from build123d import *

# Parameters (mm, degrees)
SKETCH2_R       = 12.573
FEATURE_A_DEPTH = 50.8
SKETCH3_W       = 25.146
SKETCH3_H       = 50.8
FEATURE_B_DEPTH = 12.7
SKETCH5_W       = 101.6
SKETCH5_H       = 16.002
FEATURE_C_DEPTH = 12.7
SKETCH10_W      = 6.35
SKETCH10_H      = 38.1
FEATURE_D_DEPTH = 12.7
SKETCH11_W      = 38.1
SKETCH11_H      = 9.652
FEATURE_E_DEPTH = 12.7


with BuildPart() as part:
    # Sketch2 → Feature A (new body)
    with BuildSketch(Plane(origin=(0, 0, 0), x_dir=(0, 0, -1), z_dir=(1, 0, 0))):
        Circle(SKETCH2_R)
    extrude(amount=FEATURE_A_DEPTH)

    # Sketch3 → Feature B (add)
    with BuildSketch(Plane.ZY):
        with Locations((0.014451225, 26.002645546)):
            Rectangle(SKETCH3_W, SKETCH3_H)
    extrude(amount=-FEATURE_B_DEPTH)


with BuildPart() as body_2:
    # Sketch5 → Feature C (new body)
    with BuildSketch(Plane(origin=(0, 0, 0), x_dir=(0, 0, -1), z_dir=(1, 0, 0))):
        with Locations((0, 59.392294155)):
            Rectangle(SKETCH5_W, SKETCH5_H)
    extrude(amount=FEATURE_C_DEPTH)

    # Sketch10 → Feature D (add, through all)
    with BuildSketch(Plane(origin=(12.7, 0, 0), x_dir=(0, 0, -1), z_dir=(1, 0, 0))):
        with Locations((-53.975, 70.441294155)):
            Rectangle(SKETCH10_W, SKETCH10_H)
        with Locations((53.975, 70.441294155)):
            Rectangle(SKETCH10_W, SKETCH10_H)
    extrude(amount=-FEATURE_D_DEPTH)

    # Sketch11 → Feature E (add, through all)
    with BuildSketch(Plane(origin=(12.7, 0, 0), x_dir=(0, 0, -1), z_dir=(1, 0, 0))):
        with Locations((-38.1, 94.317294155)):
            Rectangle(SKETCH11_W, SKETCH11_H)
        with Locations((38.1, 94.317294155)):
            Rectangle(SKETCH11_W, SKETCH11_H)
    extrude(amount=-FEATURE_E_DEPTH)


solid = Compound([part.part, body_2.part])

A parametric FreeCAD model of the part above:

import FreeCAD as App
import Part
import Sketcher
from FreeCAD import Vector
Q = App.Units.Quantity


def add_polygon(sketch, points):
    """Adds a closed chain of lines whose ends are joined by coincident constraints."""
    first, n = sketch.GeometryCount, len(points)
    for a, b in zip(points, points[1:] + points[:1]):
        sketch.addGeometry(Part.LineSegment(App.Vector(*a, 0), App.Vector(*b, 0)), False)
    for i in range(n):
        sketch.addConstraint(Sketcher.Constraint("Coincident", first + i, 2, first + (i + 1) % n, 1))

doc = App.newDocument("Part")
params = doc.addObject("Spreadsheet::Sheet", "Params")
for row, (alias, value) in enumerate([
    ("sketch1_diameter", "0.99 in"),
    ("pad1_length", "2 in"),
    ("sketch2_width", "2 in"),
    ("sketch2_height", "0.99 in"),
    ("pad2_length", "0.5 in"),
    ("sketch3_height", "4 in"),
    ("sketch3_width", "0.63 in"),
    ("pad3_length", "0.5 in"),
    ("sketch4_width", "1.5 in"),
    ("sketch4_height", "0.25 in"),
    ("pad4_length", "0.5 in"),
    ("sketch5_height", "1.5 in"),
    ("sketch5_width", "0.38 in"),
    ("pad5_length", "0.5 in"),
], start=1):
    params.set(f"A{row}", alias)
    params.set(f"B{row}", "=" + value)
    params.setAlias(f"B{row}", alias)

body = doc.addObject("PartDesign::Body", "Body")

# Sketch on YZ plane
sketch1 = doc.addObject("Sketcher::SketchObject", "Sketch")
body.addObject(sketch1)
sketch1.AttachmentSupport = (doc.YZ_Plane, [""])
sketch1.MapMode = "FlatFace"
sketch1.addGeometry(Part.Circle(Vector(0, 0, 0), Vector(0, 0, 1), 13), False)
sketch1.addConstraint(Sketcher.Constraint("Coincident", 0, 3, -1, 1))
sketch1.addConstraint(Sketcher.Constraint("Diameter", 0, Q("0.99 in")))
sketch1.setExpression("Constraints[1]", "Params.sketch1_diameter")
pad1 = doc.addObject("PartDesign::Pad", "Pad")
body.addObject(pad1)
pad1.Profile = sketch1
pad1.setExpression("Length", "Params.pad1_length")

# Sketch on YZ plane
sketch2 = doc.addObject("Sketcher::SketchObject", "Sketch001")
body.addObject(sketch2)
sketch2.AttachmentSupport = (doc.YZ_Plane, [""])
sketch2.MapMode = "FlatFace"
add_polygon(sketch2, [(51, -13), (1, -13), (1, 13), (51, 13)])  # lines 0-3
sketch2.addConstraint(Sketcher.Constraint("Horizontal", 0))
sketch2.addConstraint(Sketcher.Constraint("Vertical", 1))
sketch2.addConstraint(Sketcher.Constraint("Horizontal", 2))
sketch2.addConstraint(Sketcher.Constraint("Vertical", 3))
sketch2.addConstraint(Sketcher.Constraint("DistanceX", 0, 2, 0, 1, Q("2 in")))
sketch2.addConstraint(Sketcher.Constraint("DistanceY", 1, 1, 1, 2, Q("0.99 in")))
sketch2.addConstraint(Sketcher.Constraint("DistanceY", 0, 2, -1, 1, Q("12.558549 mm")))
sketch2.addConstraint(Sketcher.Constraint("DistanceX", -1, 1, 0, 2, Q("0.602646 mm")))
sketch2.setExpression("Constraints[8]", "Params.sketch2_width")
sketch2.setExpression("Constraints[9]", "Params.sketch2_height")
pad2 = doc.addObject("PartDesign::Pad", "Pad001")
body.addObject(pad2)
pad2.Profile = sketch2
pad2.setExpression("Length", "Params.pad2_length")
body2 = doc.addObject("PartDesign::Body", "Body001")

# Sketch on YZ plane
sketch3 = doc.addObject("Sketcher::SketchObject", "Sketch002")
body2.addObject(sketch3)
sketch3.AttachmentSupport = (doc.getObject("YZ_Plane001"), [""])
sketch3.MapMode = "FlatFace"
add_polygon(sketch3, [(67, 51), (51, 51), (51, -51), (67, -51)])  # lines 0-3
sketch3.addConstraint(Sketcher.Constraint("Horizontal", 0))
sketch3.addConstraint(Sketcher.Constraint("Vertical", 1))
sketch3.addConstraint(Sketcher.Constraint("Horizontal", 2))
sketch3.addConstraint(Sketcher.Constraint("Vertical", 3))
sketch3.addConstraint(Sketcher.Constraint("DistanceY", 1, 2, 1, 1, Q("4 in")))
sketch3.addConstraint(Sketcher.Constraint("DistanceY", -1, 1, 0, 2, Q("2 in")))
sketch3.addConstraint(Sketcher.Constraint("DistanceX", 0, 2, 0, 1, Q("0.63 in")))
sketch3.addConstraint(Sketcher.Constraint("DistanceX", -1, 1, 0, 2, Q("51.391294 mm")))
sketch3.setExpression("Constraints[8]", "Params.sketch3_height")
sketch3.setExpression("Constraints[10]", "Params.sketch3_width")
pad3 = doc.addObject("PartDesign::Pad", "Pad002")
body2.addObject(pad3)
pad3.Profile = sketch3
pad3.setExpression("Length", "Params.pad3_length")

# Sketch on YZ plane
sketch4 = doc.addObject("Sketcher::SketchObject", "Sketch003")
body2.addObject(sketch4)
sketch4.AttachmentSupport = (doc.getObject("YZ_Plane001"), [""])
sketch4.MapMode = "FlatFace"
sketch4.AttachmentOffset = App.Placement(Vector(0, 0, 0.5 * 25.4), App.Rotation())
add_polygon(sketch4, [(89, 57), (51, 57), (51, 51), (89, 51)])  # lines 0-3
add_polygon(sketch4, [(89, -51), (51, -51), (51, -57), (89, -57)])  # lines 4-7
sketch4.addConstraint(Sketcher.Constraint("Horizontal", 0))
sketch4.addConstraint(Sketcher.Constraint("Vertical", 1))
sketch4.addConstraint(Sketcher.Constraint("Horizontal", 2))
sketch4.addConstraint(Sketcher.Constraint("Vertical", 3))
sketch4.addConstraint(Sketcher.Constraint("Horizontal", 4))
sketch4.addConstraint(Sketcher.Constraint("Vertical", 5))
sketch4.addConstraint(Sketcher.Constraint("Horizontal", 6))
sketch4.addConstraint(Sketcher.Constraint("Vertical", 7))
sketch4.addConstraint(Sketcher.Constraint("Symmetric", 1, 2, 4, 2, -1))
sketch4.addConstraint(Sketcher.Constraint("Symmetric", 3, 2, 6, 2, -1))
sketch4.addConstraint(Sketcher.Constraint("DistanceX", 0, 2, 0, 1, Q("1.5 in")))
sketch4.addConstraint(Sketcher.Constraint("DistanceY", -1, 1, 1, 2, Q("2 in")))
sketch4.addConstraint(Sketcher.Constraint("DistanceY", 1, 2, 1, 1, Q("0.25 in")))
sketch4.addConstraint(Sketcher.Constraint("DistanceX", -1, 1, 0, 2, Q("51.391294 mm")))
sketch4.setExpression("Constraints[18]", "Params.sketch4_width")
sketch4.setExpression("Constraints[20]", "Params.sketch4_height")
pad4 = doc.addObject("PartDesign::Pad", "Pad003")
body2.addObject(pad4)
pad4.Profile = sketch4
pad4.setExpression("Length", "Params.pad4_length")
pad4.Reversed = True

# Sketch on YZ plane
sketch5 = doc.addObject("Sketcher::SketchObject", "Sketch004")
body2.addObject(sketch5)
sketch5.AttachmentSupport = (doc.getObject("YZ_Plane001"), [""])
sketch5.MapMode = "FlatFace"
sketch5.AttachmentOffset = App.Placement(Vector(0, 0, 0.5 * 25.4), App.Rotation())
add_polygon(sketch5, [(99, 57), (89, 57), (89, 19), (99, 19)])  # lines 0-3
add_polygon(sketch5, [(99, -19), (89, -19), (89, -57), (99, -57)])  # lines 4-7
sketch5.addConstraint(Sketcher.Constraint("Horizontal", 0))
sketch5.addConstraint(Sketcher.Constraint("Vertical", 1))
sketch5.addConstraint(Sketcher.Constraint("Horizontal", 2))
sketch5.addConstraint(Sketcher.Constraint("Vertical", 3))
sketch5.addConstraint(Sketcher.Constraint("Horizontal", 4))
sketch5.addConstraint(Sketcher.Constraint("Vertical", 5))
sketch5.addConstraint(Sketcher.Constraint("Horizontal", 6))
sketch5.addConstraint(Sketcher.Constraint("Vertical", 7))
sketch5.addConstraint(Sketcher.Constraint("Symmetric", 1, 2, 4, 2, -1))
sketch5.addConstraint(Sketcher.Constraint("Symmetric", 3, 2, 6, 2, -1))
sketch5.addConstraint(Sketcher.Constraint("DistanceY", 1, 2, 1, 1, Q("1.5 in")))
sketch5.addConstraint(Sketcher.Constraint("DistanceY", 4, 2, 0, 2, Q("3 in")))
sketch5.addConstraint(Sketcher.Constraint("DistanceX", 0, 2, 0, 1, Q("0.38 in")))
sketch5.addConstraint(Sketcher.Constraint("DistanceX", -1, 1, 0, 2, Q("89.491294 mm")))
sketch5.setExpression("Constraints[18]", "Params.sketch5_height")
sketch5.setExpression("Constraints[20]", "Params.sketch5_width")
pad5 = doc.addObject("PartDesign::Pad", "Pad004")
body2.addObject(pad5)
pad5.Profile = sketch5
pad5.setExpression("Length", "Params.pad5_length")
pad5.Reversed = True

doc.recompute()
